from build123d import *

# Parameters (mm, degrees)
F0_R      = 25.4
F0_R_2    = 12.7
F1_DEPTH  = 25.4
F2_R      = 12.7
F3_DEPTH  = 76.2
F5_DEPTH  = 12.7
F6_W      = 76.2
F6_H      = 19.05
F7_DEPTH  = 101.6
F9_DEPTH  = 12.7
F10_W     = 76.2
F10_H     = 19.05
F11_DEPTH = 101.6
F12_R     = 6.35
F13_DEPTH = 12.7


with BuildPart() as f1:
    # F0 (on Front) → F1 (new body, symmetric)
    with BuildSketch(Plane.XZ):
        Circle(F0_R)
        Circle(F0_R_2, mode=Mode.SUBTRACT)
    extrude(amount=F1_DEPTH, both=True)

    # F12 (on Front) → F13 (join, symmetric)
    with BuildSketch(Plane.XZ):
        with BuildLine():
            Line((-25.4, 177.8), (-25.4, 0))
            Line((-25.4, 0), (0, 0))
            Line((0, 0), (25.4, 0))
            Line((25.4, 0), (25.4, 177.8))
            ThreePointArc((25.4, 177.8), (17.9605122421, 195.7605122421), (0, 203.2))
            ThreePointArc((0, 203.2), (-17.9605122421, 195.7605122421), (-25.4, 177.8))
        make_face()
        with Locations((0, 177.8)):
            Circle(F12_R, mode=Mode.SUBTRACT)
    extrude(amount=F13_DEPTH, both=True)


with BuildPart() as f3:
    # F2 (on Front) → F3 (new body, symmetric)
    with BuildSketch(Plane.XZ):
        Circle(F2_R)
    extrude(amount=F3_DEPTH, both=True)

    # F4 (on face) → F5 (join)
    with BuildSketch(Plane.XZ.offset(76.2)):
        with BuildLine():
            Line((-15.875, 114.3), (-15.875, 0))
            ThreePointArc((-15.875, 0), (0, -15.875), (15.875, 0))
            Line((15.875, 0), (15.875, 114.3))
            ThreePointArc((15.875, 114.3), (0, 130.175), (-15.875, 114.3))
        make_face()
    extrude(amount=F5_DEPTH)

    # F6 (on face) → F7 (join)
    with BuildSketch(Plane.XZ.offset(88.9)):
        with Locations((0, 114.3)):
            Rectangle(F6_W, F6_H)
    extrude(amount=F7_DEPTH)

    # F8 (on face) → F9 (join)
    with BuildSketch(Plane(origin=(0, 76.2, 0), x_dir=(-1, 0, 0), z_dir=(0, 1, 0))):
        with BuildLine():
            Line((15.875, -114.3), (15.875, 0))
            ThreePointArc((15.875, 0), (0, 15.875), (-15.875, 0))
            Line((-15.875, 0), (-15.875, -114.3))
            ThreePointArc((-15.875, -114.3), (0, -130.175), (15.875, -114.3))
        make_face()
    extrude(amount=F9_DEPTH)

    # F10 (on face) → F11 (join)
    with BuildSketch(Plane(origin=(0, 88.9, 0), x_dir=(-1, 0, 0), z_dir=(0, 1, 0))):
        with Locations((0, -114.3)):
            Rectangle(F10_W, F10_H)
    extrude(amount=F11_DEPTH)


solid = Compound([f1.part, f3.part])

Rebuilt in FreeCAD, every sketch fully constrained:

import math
import FreeCAD as App
import Part
import Sketcher

V = App.Vector
Q = App.Units.Quantity

doc = App.newDocument("Part")
body = doc.addObject("PartDesign::Body", "Body")

sketch1 = doc.addObject("Sketcher::SketchObject", "Sketch")
body.addObject(sketch1)
sketch1.AttachmentSupport = (doc.XZ_Plane, [""])
sketch1.MapMode = "FlatFace"
sketch1.addGeometry([
    Part.Circle(V(0, 0, 0), V(0, 0, 1), 25),
    Part.Circle(V(0, 0, 0), V(0, 0, 1), 13),
], False)
sketch1.addConstraint([
    Sketcher.Constraint("Coincident", 0, 3, -1, 1),
    Sketcher.Constraint("Coincident", 1, 3, -1, 1),
    Sketcher.Constraint("Diameter", 0, Q("2 in")),
    Sketcher.Constraint("Diameter", 1, Q("1 in")),
])
pad1 = doc.addObject("PartDesign::Pad", "Pad")
body.addObject(pad1)
pad1.Profile = sketch1
pad1.Length = Q("2 in")
pad1.Midplane = True

sketch2 = doc.addObject("Sketcher::SketchObject", "Sketch001")
body.addObject(sketch2)
sketch2.AttachmentSupport = (doc.XZ_Plane, [""])
sketch2.MapMode = "FlatFace"
sketch2.addGeometry([
    Part.LineSegment(V(-25, 178, 0), V(-25, 0, 0)),
    Part.LineSegment(V(-25, 0, 0), V(25, 0, 0)),
    Part.LineSegment(V(25, 0, 0), V(25, 178, 0)),
    Part.ArcOfCircle(Part.Circle(V(0, 178, 0), V(0, 0, 1), 25), math.radians(0), math.radians(90)),
    Part.ArcOfCircle(Part.Circle(V(0, 178, 0), V(0, 0, 1), 25), math.radians(90), math.radians(180)),
    Part.Circle(V(0, 178, 0), V(0, 0, 1), 6),
], False)
sketch2.addConstraint([
    Sketcher.Constraint("Coincident", 0, 2, 1, 1),
    Sketcher.Constraint("Coincident", 1, 2, 2, 1),
    Sketcher.Constraint("Tangent", 2, 2, 3, 1),
    Sketcher.Constraint("Tangent", 3, 2, 4, 1),
    Sketcher.Constraint("Tangent", 4, 2, 0, 1),
    Sketcher.Constraint("Vertical", 0),
    Sketcher.Constraint("Horizontal", 1),
    Sketcher.Constraint("Vertical", 2),
    Sketcher.Constraint("Coincident", 5, 3, 3, 3),
    Sketcher.Constraint("Equal", 3, 4),
    Sketcher.Constraint("Symmetric", 0, 2, 1, 2, -1, 1),
    Sketcher.Constraint("PointOnObject", 3, 2, -2),
    Sketcher.Constraint("Radius", 3, Q("1 in")),
    Sketcher.Constraint("Diameter", 5, Q("0.5 in")),
    Sketcher.Constraint("DistanceY", 0, 2, 0, 1, Q("7 in")),
])
pad2 = doc.addObject("PartDesign::Pad", "Pad001")
body.addObject(pad2)
pad2.Profile = sketch2
pad2.Length = Q("1 in")
pad2.Midplane = True
body2 = doc.addObject("PartDesign::Body", "Body001")

sketch3 = doc.addObject("Sketcher::SketchObject", "Sketch002")
body2.addObject(sketch3)
sketch3.AttachmentSupport = (doc.getObject("XZ_Plane001"), [""])
sketch3.MapMode = "FlatFace"
sketch3.addGeometry(Part.Circle(V(0, 0, 0), V(0, 0, 1), 13), False)
sketch3.addConstraint([
    Sketcher.Constraint("Coincident", 0, 3, -1, 1),
    Sketcher.Constraint("Diameter", 0, Q("1 in")),
])
pad3 = doc.addObject("PartDesign::Pad", "Pad002")
body2.addObject(pad3)
pad3.Profile = sketch3
pad3.Length = Q("6 in")
pad3.Midplane = True

sketch4 = doc.addObject("Sketcher::SketchObject", "Sketch003")
body2.addObject(sketch4)
sketch4.AttachmentSupport = (doc.getObject("XZ_Plane001"), [""])
sketch4.MapMode = "FlatFace"
sketch4.AttachmentOffset = App.Placement(V(0, 0, 3 * 25.4), App.Rotation())
sketch4.addGeometry([
    Part.LineSegment(V(-16, 114, 0), V(-16, 0, 0)),
    Part.ArcOfCircle(Part.Circle(V(0, 0, 0), V(0, 0, 1), 16), math.radians(180), math.radians(360)),
    Part.LineSegment(V(16, 0, 0), V(16, 114, 0)),
    Part.ArcOfCircle(Part.Circle(V(0, 114, 0), V(0, 0, 1), 16), math.radians(0), math.radians(180)),
], False)
sketch4.addConstraint([
    Sketcher.Constraint("Tangent", 0, 2, 1, 1),
    Sketcher.Constraint("Tangent", 1, 2, 2, 1),
    Sketcher.Constraint("Tangent", 2, 2, 3, 1),
    Sketcher.Constraint("Tangent", 3, 2, 0, 1),
    Sketcher.Constraint("Vertical", 0),
    Sketcher.Constraint("Vertical", 2),
    Sketcher.Constraint("Coincident", 1, 3, -1, 1),
    Sketcher.Constraint("DistanceY", 0, 2, 0, 1, Q("4.5 in")),
    Sketcher.Constraint("Radius", 1, Q("0.625 in")),
])
pad4 = doc.addObject("PartDesign::Pad", "Pad003")
body2.addObject(pad4)
pad4.Profile = sketch4
pad4.Length = Q("0.5 in")

sketch5 = doc.addObject("Sketcher::SketchObject", "Sketch004")
body2.addObject(sketch5)
sketch5.AttachmentSupport = (doc.getObject("XZ_Plane001"), [""])
sketch5.MapMode = "FlatFace"
sketch5.AttachmentOffset = App.Placement(V(0, 0, 3.5 * 25.4), App.Rotation())
sketch5.addGeometry([
    Part.LineSegment(V(-38, 124, 0), V(-38, 105, 0)),
    Part.LineSegment(V(-38, 105, 0), V(38, 105, 0)),
    Part.LineSegment(V(38, 105, 0), V(38, 124, 0)),
    Part.LineSegment(V(38, 124, 0), V(-38, 124, 0)),
], False)
sketch5.addConstraint([
    Sketcher.Constraint("Coincident", 0, 2, 1, 1),
    Sketcher.Constraint("Coincident", 1, 2, 2, 1),
    Sketcher.Constraint("Coincident", 2, 2, 3, 1),
    Sketcher.Constraint("Coincident", 3, 2, 0, 1),
    Sketcher.Constraint("Vertical", 0),
    Sketcher.Constraint("Horizontal", 1),
    Sketcher.Constraint("Vertical", 2),
    Sketcher.Constraint("Horizontal", 3),
    Sketcher.Constraint("DistanceX", 1, 1, 1, 2, Q("3 in")),
    Sketcher.Constraint("DistanceY", 0, 2, 0, 1, Q("0.75 in")),
    Sketcher.Constraint("DistanceX", 0, 2, -1, 1, Q("1.5 in")),
    Sketcher.Constraint("DistanceY", -1, 1, 0, 2, Q("4.125 in")),
])
pad5 = doc.addObject("PartDesign::Pad", "Pad004")
body2.addObject(pad5)
pad5.Profile = sketch5
pad5.Length = Q("4 in")

sketch6 = doc.addObject("Sketcher::SketchObject", "Sketch005")
body2.addObject(sketch6)
sketch6.AttachmentSupport = (doc.getObject("XZ_Plane001"), [""])
sketch6.MapMode = "FlatFace"
sketch6.AttachmentOffset = App.Placement(V(0, 0, -3 * 25.4), App.Rotation())
sketch6.addGeometry([
    Part.LineSegment(V(-16, -114, 0), V(-16, 0, 0)),
    Part.ArcOfCircle(Part.Circle(V(0, 0, 0), V(0, 0, 1), 16), math.radians(0), math.radians(180)),
    Part.LineSegment(V(16, 0, 0), V(16, -114, 0)),
    Part.ArcOfCircle(Part.Circle(V(0, -114, 0), V(0, 0, 1), 16), math.radians(180), math.radians(360)),
], False)
sketch6.addConstraint([
    Sketcher.Constraint("Tangent", 0, 2, 1, 2),
    Sketcher.Constraint("Tangent", 1, 1, 2, 1),
    Sketcher.Constraint("Tangent", 2, 2, 3, 2),
    Sketcher.Constraint("Tangent", 3, 1, 0, 1),
    Sketcher.Constraint("Vertical", 0),
    Sketcher.Constraint("Vertical", 2),
    Sketcher.Constraint("Coincident", 1, 3, -1, 1),
    Sketcher.Constraint("DistanceY", 0, 1, 0, 2, Q("4.5 in")),
    Sketcher.Constraint("Radius", 1, Q("0.625 in")),
])
pad6 = doc.addObject("PartDesign::Pad", "Pad005")
body2.addObject(pad6)
pad6.Profile = sketch6
pad6.Length = Q("0.5 in")
pad6.Reversed = True

sketch7 = doc.addObject("Sketcher::SketchObject", "Sketch006")
body2.addObject(sketch7)
sketch7.AttachmentSupport = (doc.getObject("XZ_Plane001"), [""])
sketch7.MapMode = "FlatFace"
sketch7.AttachmentOffset = App.Placement(V(0, 0, -3.5 * 25.4), App.Rotation())
sketch7.addGeometry([
    Part.LineSegment(V(38, -105, 0), V(38, -124, 0)),
    Part.LineSegment(V(38, -124, 0), V(-38, -124, 0)),
    Part.LineSegment(V(-38, -124, 0), V(-38, -105, 0)),
    Part.LineSegment(V(-38, -105, 0), V(38, -105, 0)),
], False)
sketch7.addConstraint([
    Sketcher.Constraint("Coincident", 0, 2, 1, 1),
    Sketcher.Constraint("Coincident", 1, 2, 2, 1),
    Sketcher.Constraint("Coincident", 2, 2, 3, 1),
    Sketcher.Constraint("Coincident", 3, 2, 0, 1),
    Sketcher.Constraint("Vertical", 0),
    Sketcher.Constraint("Horizontal", 1),
    Sketcher.Constraint("Vertical", 2),
    Sketcher.Constraint("Horizontal", 3),
    Sketcher.Constraint("DistanceX", 1, 2, 1, 1, Q("3 in")),
    Sketcher.Constraint("DistanceY", 0, 2, 0, 1, Q("0.75 in")),
    Sketcher.Constraint("DistanceX", -1, 1, 0, 2, Q("1.5 in")),
    Sketcher.Constraint("DistanceY", 0, 2, -1, 1, Q("4.875 in")),
])
pad7 = doc.addObject("PartDesign::Pad", "Pad006")
body2.addObject(pad7)
pad7.Profile = sketch7
pad7.Length = Q("4 in")
pad7.Reversed = True

doc.recompute()
